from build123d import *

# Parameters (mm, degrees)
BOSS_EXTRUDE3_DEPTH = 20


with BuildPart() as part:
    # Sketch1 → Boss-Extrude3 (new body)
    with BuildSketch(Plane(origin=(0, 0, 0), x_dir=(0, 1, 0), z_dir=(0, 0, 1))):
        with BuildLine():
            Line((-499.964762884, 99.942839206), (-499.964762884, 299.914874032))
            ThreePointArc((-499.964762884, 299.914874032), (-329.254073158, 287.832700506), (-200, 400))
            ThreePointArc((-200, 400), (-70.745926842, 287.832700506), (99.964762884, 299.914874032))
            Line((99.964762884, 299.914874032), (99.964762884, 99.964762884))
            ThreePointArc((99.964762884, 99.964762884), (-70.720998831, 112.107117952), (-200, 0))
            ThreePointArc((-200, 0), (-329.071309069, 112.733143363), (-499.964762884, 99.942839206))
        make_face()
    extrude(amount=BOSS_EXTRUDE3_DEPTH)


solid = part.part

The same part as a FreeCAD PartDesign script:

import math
import FreeCAD as App
import Part
import Sketcher

V = App.Vector

doc = App.newDocument("Part")
body = doc.addObject("PartDesign::Body", "Body")

# Sketch on XY plane
sketch1 = doc.addObject("Sketcher::SketchObject", "Sketch")
body.addObject(sketch1)
sketch1.AttachmentSupport = (doc.XY_Plane, [""])
sketch1.MapMode = "FlatFace"
sketch1.addGeometry([
    Part.LineSegment(V(-300, -500, 0), V(-100, -500, 0)),  # 0
    Part.ArcOfCircle(Part.Circle(V(98, -399, 0), V(0, 0, 1), 222), math.radians(116), math.radians(207)),  # 1
    Part.ArcOfCircle(Part.Circle(V(100, 0, 0), V(0, 0, 1), 224), math.radians(153), math.radians(243)),  # 2
    Part.LineSegment(V(-100, 100, 0), V(-300, 100, 0)),  # 3
    Part.ArcOfCircle(Part.Circle(V(-500, 0, 0), V(0, 0, 1), 224), math.radians(-63), math.radians(27)),  # 4
    Part.ArcOfCircle(Part.Circle(V(-500, -400, 0), V(0, 0, 1), 224), math.radians(-27), math.radians(63)),  # 5
], False)
sketch1.addConstraint([
    Sketcher.Constraint("Coincident", 0, 2, 1, 2),
    Sketcher.Constraint("Coincident", 1, 1, 2, 2),
    Sketcher.Constraint("Coincident", 2, 1, 3, 1),
    Sketcher.Constraint("Coincident", 3, 2, 4, 2),
    Sketcher.Constraint("Coincident", 4, 1, 5, 2),
    Sketcher.Constraint("Coincident", 5, 1, 0, 1),
    Sketcher.Constraint("Horizontal", 0),
    Sketcher.Constraint("Horizontal", 3),
    Sketcher.Constraint("Equal", 4, 5),
    Sketcher.Constraint("PointOnObject", 1, 1, -2),
    Sketcher.Constraint("Horizontal", 1, 1, 4, 1),
    Sketcher.Constraint("Vertical", 4, 3, 5, 3),
    Sketcher.Constraint("Vertical", 3, 2, 5, 1),
    Sketcher.Constraint("DistanceX", -1, 1, 2, 3, 100.0),
    Sketcher.Constraint("DistanceY", 1, 1, -1, 1, 200.0),
    Sketcher.Constraint("DistanceX", 4, 1, -1, 1, 400.0),
    Sketcher.Constraint("DistanceY", 2, 3, 2, 1, 100.0),
    Sketcher.Constraint("Radius", 2, 223.575281),
    Sketcher.Constraint("Radius", 1, 221.969305),
    Sketcher.Constraint("Radius", 4, 223.602204),
    Sketcher.Constraint("DistanceX", 3, 2, 3, 1, 199.950111),
    Sketcher.Constraint("DistanceX", 0, 1, 0, 2, 199.972035),
])
pad1 = doc.addObject("PartDesign::Pad", "Pad")
body.addObject(pad1)
pad1.Profile = sketch1
pad1.Length = 20

doc.recompute()
